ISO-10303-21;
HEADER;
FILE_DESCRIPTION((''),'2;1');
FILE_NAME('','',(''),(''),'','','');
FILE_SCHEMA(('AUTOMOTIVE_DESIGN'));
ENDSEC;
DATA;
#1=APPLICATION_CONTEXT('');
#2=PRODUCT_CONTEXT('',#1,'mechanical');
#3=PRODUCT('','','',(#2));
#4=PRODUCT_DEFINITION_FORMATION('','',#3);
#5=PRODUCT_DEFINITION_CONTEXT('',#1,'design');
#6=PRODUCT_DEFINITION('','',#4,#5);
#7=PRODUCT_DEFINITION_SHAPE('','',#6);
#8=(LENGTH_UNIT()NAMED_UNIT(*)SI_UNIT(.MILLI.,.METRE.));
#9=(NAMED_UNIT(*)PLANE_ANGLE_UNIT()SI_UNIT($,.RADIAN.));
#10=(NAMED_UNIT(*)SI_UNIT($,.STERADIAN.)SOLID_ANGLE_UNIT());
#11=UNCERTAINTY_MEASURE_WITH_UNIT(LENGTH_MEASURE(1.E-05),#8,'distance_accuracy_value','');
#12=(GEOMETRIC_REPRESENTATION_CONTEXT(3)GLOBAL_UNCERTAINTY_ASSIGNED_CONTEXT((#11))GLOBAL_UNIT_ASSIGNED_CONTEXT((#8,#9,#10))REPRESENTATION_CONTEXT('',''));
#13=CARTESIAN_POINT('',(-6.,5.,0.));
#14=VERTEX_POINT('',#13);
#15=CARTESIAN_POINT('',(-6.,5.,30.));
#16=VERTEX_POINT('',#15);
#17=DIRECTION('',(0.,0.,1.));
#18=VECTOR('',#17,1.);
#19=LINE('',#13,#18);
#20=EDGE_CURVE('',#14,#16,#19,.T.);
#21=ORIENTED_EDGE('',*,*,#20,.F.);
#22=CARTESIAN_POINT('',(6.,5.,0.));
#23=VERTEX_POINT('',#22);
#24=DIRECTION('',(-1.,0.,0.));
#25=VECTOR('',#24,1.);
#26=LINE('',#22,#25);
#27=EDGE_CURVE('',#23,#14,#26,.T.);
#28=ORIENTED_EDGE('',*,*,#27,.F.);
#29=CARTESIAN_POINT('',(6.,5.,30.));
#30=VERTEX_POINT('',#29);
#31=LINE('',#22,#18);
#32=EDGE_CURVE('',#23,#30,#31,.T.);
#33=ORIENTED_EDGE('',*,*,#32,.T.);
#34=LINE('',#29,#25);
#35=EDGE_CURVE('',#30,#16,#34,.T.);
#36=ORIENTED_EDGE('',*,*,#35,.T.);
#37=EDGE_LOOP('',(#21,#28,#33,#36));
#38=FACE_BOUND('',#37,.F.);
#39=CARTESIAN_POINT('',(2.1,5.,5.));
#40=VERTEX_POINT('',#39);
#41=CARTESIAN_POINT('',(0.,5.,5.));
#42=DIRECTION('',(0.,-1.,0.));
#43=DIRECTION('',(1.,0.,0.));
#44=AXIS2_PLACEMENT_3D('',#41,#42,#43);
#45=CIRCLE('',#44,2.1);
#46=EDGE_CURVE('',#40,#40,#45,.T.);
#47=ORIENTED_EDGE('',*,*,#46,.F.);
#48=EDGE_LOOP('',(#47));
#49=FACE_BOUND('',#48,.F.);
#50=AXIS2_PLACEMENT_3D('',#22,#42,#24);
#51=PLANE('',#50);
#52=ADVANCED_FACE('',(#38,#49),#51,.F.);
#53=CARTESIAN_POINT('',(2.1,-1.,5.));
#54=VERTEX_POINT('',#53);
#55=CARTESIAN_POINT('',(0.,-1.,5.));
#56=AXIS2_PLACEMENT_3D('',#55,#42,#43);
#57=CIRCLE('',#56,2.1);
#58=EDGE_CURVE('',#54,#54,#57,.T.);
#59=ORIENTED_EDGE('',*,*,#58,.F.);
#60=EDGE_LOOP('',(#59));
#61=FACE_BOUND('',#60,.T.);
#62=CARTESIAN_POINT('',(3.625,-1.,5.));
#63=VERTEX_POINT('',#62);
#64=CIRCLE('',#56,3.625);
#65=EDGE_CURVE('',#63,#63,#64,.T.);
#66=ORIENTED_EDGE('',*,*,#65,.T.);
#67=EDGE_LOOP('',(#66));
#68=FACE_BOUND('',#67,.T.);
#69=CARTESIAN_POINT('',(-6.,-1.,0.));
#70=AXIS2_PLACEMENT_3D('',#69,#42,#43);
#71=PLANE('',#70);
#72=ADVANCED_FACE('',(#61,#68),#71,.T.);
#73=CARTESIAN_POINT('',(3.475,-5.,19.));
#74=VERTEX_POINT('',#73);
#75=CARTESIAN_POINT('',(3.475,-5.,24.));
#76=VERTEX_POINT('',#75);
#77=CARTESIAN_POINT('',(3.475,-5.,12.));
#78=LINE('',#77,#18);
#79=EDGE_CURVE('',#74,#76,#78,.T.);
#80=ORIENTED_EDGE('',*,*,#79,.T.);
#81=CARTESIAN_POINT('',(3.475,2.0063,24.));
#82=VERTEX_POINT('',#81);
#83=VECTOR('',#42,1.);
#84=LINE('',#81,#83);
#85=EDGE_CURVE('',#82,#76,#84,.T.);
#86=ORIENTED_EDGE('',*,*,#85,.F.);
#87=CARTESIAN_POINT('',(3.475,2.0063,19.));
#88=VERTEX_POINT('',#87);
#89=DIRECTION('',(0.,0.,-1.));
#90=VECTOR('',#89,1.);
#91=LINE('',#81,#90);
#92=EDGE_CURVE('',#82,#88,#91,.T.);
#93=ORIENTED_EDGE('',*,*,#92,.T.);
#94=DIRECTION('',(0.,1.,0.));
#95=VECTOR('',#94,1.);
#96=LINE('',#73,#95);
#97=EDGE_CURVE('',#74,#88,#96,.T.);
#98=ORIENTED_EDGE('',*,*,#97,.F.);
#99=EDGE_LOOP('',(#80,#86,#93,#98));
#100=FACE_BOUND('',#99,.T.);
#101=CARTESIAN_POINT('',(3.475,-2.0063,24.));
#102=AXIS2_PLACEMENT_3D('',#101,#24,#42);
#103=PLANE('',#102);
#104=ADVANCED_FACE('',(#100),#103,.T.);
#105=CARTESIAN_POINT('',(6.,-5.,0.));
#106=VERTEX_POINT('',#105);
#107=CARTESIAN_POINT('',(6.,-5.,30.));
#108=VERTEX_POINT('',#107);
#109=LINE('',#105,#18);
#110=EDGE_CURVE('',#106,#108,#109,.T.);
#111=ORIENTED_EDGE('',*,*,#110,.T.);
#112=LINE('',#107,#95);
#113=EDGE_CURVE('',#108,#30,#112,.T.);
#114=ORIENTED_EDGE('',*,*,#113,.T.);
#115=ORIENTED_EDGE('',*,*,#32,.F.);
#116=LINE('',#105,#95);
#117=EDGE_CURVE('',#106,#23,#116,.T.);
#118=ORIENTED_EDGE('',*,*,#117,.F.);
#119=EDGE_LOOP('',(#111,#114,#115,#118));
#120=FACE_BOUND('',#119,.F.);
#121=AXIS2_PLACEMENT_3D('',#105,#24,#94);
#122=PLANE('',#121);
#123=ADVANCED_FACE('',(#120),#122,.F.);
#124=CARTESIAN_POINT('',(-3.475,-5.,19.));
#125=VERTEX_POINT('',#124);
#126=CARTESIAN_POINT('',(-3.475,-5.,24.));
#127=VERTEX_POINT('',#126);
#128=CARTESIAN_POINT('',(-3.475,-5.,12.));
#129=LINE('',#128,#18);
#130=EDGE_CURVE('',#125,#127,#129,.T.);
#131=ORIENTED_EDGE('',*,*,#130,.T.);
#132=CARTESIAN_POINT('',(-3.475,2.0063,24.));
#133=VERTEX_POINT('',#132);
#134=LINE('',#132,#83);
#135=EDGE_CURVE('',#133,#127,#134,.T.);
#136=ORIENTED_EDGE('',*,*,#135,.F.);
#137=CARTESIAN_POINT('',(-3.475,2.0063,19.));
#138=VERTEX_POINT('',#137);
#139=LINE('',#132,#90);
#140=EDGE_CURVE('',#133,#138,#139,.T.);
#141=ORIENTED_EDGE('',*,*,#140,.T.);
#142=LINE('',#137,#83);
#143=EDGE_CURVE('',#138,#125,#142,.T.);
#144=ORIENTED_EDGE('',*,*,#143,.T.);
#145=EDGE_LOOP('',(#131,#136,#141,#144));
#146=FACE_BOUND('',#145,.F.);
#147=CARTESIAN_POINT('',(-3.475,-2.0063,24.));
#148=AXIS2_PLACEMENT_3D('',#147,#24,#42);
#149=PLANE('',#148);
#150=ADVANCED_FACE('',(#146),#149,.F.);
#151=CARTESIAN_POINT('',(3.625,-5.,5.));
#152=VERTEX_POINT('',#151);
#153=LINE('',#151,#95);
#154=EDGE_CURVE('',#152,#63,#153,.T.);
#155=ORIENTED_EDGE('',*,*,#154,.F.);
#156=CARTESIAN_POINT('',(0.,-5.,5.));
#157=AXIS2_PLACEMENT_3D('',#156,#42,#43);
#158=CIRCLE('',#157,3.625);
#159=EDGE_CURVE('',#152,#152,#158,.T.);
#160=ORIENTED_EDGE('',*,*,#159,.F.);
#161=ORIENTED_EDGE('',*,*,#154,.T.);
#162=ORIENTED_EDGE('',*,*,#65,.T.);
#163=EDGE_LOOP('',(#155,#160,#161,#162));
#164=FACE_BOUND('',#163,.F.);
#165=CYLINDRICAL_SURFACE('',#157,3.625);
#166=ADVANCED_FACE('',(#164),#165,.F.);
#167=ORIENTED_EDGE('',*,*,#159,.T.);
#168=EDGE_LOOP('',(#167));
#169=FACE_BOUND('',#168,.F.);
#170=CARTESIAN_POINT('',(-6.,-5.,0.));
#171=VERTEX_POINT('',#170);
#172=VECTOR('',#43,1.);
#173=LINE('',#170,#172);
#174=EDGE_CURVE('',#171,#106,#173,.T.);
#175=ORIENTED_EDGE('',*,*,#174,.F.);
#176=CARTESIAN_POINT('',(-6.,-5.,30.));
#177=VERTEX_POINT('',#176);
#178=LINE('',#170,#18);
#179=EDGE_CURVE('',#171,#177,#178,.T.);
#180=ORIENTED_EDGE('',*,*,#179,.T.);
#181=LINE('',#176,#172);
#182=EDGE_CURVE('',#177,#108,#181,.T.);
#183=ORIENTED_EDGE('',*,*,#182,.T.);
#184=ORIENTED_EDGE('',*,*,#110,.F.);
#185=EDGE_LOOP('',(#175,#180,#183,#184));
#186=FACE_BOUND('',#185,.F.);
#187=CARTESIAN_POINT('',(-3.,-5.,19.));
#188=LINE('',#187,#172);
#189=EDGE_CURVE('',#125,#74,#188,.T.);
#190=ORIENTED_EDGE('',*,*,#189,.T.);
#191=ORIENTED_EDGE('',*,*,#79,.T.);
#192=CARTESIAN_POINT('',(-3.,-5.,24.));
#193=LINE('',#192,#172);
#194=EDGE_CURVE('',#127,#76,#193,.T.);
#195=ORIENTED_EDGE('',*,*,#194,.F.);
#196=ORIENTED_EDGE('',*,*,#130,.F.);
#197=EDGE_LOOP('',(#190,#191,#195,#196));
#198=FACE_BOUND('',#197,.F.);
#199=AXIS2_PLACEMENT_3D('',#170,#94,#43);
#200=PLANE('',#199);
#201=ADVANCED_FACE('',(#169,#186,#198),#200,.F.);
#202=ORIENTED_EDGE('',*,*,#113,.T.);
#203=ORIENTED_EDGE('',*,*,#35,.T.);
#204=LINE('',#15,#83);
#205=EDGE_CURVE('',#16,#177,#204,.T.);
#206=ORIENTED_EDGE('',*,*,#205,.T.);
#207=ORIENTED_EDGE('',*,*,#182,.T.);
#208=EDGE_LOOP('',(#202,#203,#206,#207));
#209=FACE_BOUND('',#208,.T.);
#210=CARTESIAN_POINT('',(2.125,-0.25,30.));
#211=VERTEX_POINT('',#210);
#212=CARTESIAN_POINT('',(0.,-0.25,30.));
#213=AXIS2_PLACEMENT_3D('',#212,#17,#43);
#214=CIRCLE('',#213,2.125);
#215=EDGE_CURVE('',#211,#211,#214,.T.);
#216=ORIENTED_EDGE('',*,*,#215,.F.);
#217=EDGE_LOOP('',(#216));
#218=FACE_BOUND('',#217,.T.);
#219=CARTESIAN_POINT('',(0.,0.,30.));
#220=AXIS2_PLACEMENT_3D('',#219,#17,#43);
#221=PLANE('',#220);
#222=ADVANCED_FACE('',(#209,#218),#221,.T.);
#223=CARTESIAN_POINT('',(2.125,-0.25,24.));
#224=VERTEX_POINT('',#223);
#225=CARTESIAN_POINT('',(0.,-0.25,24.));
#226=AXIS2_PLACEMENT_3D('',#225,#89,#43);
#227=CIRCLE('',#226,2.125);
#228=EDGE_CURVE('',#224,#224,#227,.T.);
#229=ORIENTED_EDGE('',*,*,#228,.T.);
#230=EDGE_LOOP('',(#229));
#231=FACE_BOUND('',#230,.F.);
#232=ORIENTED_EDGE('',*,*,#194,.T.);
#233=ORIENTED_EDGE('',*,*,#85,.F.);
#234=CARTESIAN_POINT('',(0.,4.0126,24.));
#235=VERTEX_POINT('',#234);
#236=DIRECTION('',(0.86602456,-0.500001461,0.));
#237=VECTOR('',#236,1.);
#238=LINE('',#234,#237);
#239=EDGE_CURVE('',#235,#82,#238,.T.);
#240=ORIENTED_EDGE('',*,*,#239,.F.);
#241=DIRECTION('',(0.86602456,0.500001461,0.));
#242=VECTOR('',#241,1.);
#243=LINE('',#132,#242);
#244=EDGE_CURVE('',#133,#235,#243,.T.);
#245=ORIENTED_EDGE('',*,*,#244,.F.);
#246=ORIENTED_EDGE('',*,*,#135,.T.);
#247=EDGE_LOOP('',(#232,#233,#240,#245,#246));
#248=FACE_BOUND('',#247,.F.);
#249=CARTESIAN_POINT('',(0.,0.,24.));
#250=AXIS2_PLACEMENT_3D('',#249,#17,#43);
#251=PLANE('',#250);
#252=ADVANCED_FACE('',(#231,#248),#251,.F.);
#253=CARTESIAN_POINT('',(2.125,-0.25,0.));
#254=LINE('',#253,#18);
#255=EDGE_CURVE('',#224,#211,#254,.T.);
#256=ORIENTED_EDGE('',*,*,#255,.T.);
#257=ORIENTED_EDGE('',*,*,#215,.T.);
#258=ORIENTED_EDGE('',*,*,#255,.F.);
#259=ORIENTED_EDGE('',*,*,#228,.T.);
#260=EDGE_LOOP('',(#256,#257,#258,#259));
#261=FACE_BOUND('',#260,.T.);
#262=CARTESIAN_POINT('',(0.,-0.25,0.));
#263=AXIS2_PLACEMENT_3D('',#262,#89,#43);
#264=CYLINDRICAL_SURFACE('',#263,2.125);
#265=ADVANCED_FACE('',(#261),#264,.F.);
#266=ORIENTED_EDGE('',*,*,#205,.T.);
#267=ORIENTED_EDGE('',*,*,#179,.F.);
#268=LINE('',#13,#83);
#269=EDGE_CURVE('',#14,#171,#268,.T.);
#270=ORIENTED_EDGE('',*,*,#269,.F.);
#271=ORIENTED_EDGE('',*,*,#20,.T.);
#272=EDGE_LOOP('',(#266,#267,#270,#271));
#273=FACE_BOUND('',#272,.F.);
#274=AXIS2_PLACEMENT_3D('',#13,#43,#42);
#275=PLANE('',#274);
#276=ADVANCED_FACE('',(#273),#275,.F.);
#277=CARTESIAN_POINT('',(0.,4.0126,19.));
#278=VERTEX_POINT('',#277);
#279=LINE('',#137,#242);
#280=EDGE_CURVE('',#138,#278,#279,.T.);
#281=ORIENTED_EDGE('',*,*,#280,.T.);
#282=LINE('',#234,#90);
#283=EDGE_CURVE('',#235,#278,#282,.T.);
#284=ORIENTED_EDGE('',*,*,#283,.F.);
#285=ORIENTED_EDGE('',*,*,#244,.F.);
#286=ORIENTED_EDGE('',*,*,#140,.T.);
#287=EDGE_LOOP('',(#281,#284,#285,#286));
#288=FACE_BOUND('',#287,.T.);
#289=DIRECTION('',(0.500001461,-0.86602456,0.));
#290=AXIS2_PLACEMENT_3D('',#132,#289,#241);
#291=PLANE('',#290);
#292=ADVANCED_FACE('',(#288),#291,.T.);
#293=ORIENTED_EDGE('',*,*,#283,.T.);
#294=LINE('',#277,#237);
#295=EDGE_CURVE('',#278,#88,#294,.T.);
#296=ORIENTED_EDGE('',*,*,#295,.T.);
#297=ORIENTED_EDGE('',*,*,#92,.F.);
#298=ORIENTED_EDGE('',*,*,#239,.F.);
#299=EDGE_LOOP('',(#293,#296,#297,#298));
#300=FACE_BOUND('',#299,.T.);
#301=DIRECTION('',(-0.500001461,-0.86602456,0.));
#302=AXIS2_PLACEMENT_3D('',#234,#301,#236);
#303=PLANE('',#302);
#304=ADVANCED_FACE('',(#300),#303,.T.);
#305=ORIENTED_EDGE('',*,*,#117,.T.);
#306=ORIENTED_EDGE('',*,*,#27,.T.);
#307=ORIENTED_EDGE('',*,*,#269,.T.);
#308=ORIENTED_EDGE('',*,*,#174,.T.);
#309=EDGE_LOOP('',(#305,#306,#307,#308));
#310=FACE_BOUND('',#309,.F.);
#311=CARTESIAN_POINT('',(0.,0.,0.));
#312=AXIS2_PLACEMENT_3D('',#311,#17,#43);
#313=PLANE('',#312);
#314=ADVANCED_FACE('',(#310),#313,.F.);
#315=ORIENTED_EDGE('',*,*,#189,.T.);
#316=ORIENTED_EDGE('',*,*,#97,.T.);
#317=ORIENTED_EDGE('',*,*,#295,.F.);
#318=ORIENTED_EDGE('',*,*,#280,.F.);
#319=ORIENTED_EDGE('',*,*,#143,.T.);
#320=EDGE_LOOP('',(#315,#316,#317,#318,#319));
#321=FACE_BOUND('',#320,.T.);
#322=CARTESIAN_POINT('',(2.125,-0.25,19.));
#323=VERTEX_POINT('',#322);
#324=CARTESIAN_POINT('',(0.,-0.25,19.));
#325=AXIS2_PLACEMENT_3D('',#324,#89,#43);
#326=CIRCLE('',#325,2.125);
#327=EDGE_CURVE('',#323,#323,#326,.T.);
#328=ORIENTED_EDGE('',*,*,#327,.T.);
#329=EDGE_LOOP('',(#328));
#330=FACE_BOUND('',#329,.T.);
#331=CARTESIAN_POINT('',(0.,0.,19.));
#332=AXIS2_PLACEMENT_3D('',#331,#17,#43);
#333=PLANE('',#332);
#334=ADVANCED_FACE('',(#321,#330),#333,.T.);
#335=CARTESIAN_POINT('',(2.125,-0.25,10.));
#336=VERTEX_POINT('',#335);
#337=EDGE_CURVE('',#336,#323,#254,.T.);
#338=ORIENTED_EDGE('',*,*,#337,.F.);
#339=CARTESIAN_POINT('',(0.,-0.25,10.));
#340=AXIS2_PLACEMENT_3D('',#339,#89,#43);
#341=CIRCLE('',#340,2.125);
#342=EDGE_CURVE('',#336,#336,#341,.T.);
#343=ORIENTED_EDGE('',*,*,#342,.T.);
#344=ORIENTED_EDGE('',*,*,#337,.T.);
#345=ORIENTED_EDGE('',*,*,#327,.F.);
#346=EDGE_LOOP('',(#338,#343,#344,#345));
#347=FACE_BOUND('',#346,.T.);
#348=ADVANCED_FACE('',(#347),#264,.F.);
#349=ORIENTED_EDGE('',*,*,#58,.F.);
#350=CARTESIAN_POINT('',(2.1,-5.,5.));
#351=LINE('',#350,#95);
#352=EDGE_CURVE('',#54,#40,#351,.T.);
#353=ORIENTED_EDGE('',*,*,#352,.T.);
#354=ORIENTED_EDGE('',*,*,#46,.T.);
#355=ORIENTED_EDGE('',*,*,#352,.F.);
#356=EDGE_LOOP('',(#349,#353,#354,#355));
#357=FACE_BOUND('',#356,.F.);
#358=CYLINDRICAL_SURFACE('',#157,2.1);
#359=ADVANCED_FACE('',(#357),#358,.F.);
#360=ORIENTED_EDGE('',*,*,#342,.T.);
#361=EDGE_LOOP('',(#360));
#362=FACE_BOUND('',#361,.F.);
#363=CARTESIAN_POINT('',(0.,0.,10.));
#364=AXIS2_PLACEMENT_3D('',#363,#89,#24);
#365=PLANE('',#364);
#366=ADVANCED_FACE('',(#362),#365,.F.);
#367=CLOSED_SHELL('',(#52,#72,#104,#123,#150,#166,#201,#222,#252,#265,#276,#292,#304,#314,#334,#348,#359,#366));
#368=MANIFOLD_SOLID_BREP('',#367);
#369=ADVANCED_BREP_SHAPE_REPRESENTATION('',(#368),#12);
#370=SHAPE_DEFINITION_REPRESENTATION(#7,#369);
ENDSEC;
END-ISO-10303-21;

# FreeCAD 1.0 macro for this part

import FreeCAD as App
import Part
import Sketcher
from FreeCAD import Vector
Q = App.Units.Quantity

doc = App.newDocument("Part")
body = doc.addObject("PartDesign::Body", "Body")

sketch1 = body.newObject("Sketcher::SketchObject", "Sketch")
sketch1.AttachmentSupport = (doc.getObject("XY_Plane"), [""])
sketch1.MapMode = "FlatFace"
sketch1.addGeometry(Part.LineSegment(Vector(-6, 5, 0), Vector(-6, -5, 0)), False)
sketch1.addGeometry(Part.LineSegment(Vector(-6, -5, 0), Vector(6, -5, 0)), False)
sketch1.addGeometry(Part.LineSegment(Vector(6, -5, 0), Vector(6, 5, 0)), False)
sketch1.addGeometry(Part.LineSegment(Vector(6, 5, 0), Vector(-6, 5, 0)), False)
sketch1.addGeometry(Part.Circle(Vector(0, -0.2, 0), Vector(0, 0, 1), 2.1), False)
sketch1.addConstraint(Sketcher.Constraint("Coincident", 0, 2, 1, 1))
sketch1.addConstraint(Sketcher.Constraint("Coincident", 1, 2, 2, 1))
sketch1.addConstraint(Sketcher.Constraint("Coincident", 2, 2, 3, 1))
sketch1.addConstraint(Sketcher.Constraint("Coincident", 3, 2, 0, 1))
sketch1.addConstraint(Sketcher.Constraint("Vertical", 0))
sketch1.addConstraint(Sketcher.Constraint("Horizontal", 1))
sketch1.addConstraint(Sketcher.Constraint("Vertical", 2))
sketch1.addConstraint(Sketcher.Constraint("Horizontal", 3))
sketch1.addConstraint(Sketcher.Constraint("Symmetric", 0, 2, 2, 2, -1, 1))
sketch1.addConstraint(Sketcher.Constraint("PointOnObject", 4, 3, -2))
sketch1.addConstraint(Sketcher.Constraint("Diameter", 4, 4.25))
sketch1.addConstraint(Sketcher.Constraint("DistanceX", 1, 1, 1, 2, 12.0))
sketch1.addConstraint(Sketcher.Constraint("DistanceY", 0, 2, 0, 1, 10.0))
sketch1.addConstraint(Sketcher.Constraint("DistanceY", 4, 3, -1, 1, 0.25))
pad1 = body.newObject("PartDesign::Pad", "Pad")
pad1.Profile = sketch1
pad1.Length = 30

sketch2 = body.newObject("Sketcher::SketchObject", "Sketch001")
sketch2.AttachmentSupport = (doc.getObject("XY_Plane"), [""])
sketch2.MapMode = "FlatFace"
sketch2.addGeometry(Part.Circle(Vector(0, -0.2, 0), Vector(0, 0, 1), 2.1), False)
sketch2.addConstraint(Sketcher.Constraint("PointOnObject", 0, 3, -2))
sketch2.addConstraint(Sketcher.Constraint("Diameter", 0, 4.25))
sketch2.addConstraint(Sketcher.Constraint("DistanceY", 0, 3, -1, 1, 0.25))
pad2 = body.newObject("PartDesign::Pad", "Pad001")
pad2.Profile = sketch2
pad2.Length = 10

sketch3 = body.newObject("Sketcher::SketchObject", "Sketch002")
sketch3.AttachmentSupport = (doc.getObject("XZ_Plane"), [""])
sketch3.MapMode = "FlatFace"
sketch3.AttachmentOffset = App.Placement(Vector(0, 0, 5), App.Rotation())
sketch3.addGeometry(Part.Circle(Vector(0, 5, 0), Vector(0, 0, 1), 2.1), False)
sketch3.addConstraint(Sketcher.Constraint("PointOnObject", 0, 3, -2))
sketch3.addConstraint(Sketcher.Constraint("Diameter", 0, 4.2))
sketch3.addConstraint(Sketcher.Constraint("DistanceY", -1, 1, 0, 3, 5.0))
pocket1 = body.newObject("PartDesign::Pocket", "Pocket")
pocket1.Profile = sketch3
pocket1.Type = "ThroughAll"

sketch4 = body.newObject("Sketcher::SketchObject", "Sketch003")
sketch4.AttachmentSupport = (doc.getObject("XY_Plane"), [""])
sketch4.MapMode = "FlatFace"
sketch4.AttachmentOffset = App.Placement(Vector(0, 0, 24), App.Rotation())
sketch4.addGeometry(Part.LineSegment(Vector(-3.5, 2, 0), Vector(-3.5, -10, 0)), False)
sketch4.addGeometry(Part.LineSegment(Vector(-3.5, -10, 0), Vector(3.5, -10, 0)), False)
sketch4.addGeometry(Part.LineSegment(Vector(3.5, -10, 0), Vector(3.5, 2, 0)), False)
sketch4.addGeometry(Part.LineSegment(Vector(3.5, 2, 0), Vector(0, 4, 0)), False)
sketch4.addGeometry(Part.LineSegment(Vector(0, 4, 0), Vector(-3.5, 2, 0)), False)
sketch4.addConstraint(Sketcher.Constraint("Coincident", 0, 2, 1, 1))
sketch4.addConstraint(Sketcher.Constraint("Coincident", 1, 2, 2, 1))
sketch4.addConstraint(Sketcher.Constraint("Coincident", 2, 2, 3, 1))
sketch4.addConstraint(Sketcher.Constraint("Coincident", 3, 2, 4, 1))
sketch4.addConstraint(Sketcher.Constraint("Coincident", 4, 2, 0, 1))
sketch4.addConstraint(Sketcher.Constraint("Vertical", 0))
sketch4.addConstraint(Sketcher.Constraint("Horizontal", 1))
sketch4.addConstraint(Sketcher.Constraint("Vertical", 2))
sketch4.addConstraint(Sketcher.Constraint("Symmetric", 2, 2, 4, 2, -2))
sketch4.addConstraint(Sketcher.Constraint("PointOnObject", 3, 2, -2))
sketch4.addConstraint(Sketcher.Constraint("DistanceX", 1, 1, 1, 2, 6.95))
sketch4.addConstraint(Sketcher.Constraint("Angle", 3, Q("150 deg")))
sketch4.addConstraint(Sketcher.Constraint("DistanceY", 0, 2, 0, 1, 11.9627))
sketch4.addConstraint(Sketcher.Constraint("DistanceY", 0, 2, -1, 1, 9.9564))
pocket2 = body.newObject("PartDesign::Pocket", "Pocket001")
pocket2.Profile = sketch4
pocket2.Length = 5

sketch5 = body.newObject("Sketcher::SketchObject", "Sketch004")
sketch5.AttachmentSupport = (doc.getObject("XZ_Plane"), [""])
sketch5.MapMode = "FlatFace"
sketch5.AttachmentOffset = App.Placement(Vector(0, 0, 5), App.Rotation())
sketch5.addGeometry(Part.Circle(Vector(0, 5, 0), Vector(0, 0, 1), 3.6), False)
sketch5.addGeometry(Part.Circle(Vector(0, 5, 0), Vector(0, 0, 1), 2.1), False)
sketch5.addConstraint(Sketcher.Constraint("Coincident", 1, 3, 0, 3))
sketch5.addConstraint(Sketcher.Constraint("PointOnObject", 0, 3, -2))
sketch5.addConstraint(Sketcher.Constraint("Diameter", 0, 7.25))
sketch5.addConstraint(Sketcher.Constraint("Diameter", 1, 4.2))
sketch5.addConstraint(Sketcher.Constraint("DistanceY", -1, 1, 0, 3, 5.0))
pocket3 = body.newObject("PartDesign::Pocket", "Pocket002")
pocket3.Profile = sketch5
pocket3.Length = 4

doc.recompute()
